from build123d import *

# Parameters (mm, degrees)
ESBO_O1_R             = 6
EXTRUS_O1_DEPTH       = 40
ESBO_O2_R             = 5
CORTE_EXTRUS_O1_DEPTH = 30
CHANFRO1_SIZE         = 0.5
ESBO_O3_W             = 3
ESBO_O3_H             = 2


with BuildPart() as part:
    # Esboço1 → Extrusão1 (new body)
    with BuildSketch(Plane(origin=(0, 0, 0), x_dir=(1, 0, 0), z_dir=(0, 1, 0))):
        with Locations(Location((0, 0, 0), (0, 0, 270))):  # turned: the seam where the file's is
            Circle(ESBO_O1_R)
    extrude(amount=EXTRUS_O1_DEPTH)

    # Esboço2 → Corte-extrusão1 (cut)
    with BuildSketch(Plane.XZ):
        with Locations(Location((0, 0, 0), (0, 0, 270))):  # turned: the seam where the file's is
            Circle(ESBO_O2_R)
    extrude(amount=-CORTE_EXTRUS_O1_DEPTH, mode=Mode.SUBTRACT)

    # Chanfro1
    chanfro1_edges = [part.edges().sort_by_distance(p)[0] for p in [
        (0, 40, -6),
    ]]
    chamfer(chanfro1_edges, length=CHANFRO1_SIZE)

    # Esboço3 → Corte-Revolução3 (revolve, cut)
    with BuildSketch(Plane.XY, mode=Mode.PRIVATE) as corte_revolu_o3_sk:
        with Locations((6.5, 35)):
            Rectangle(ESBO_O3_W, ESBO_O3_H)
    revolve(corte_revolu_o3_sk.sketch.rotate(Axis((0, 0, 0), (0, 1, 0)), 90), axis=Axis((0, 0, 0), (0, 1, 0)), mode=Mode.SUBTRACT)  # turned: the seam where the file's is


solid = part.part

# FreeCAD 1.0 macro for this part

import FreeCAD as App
import Part
import Sketcher


def edges_at(feature, points):
    """Names of the edges that pass closest to the given points."""
    edges = feature.Shape.Edges
    near = lambda p: min(range(len(edges)), key=lambda i: edges[i].distToShape(Part.Vertex(*p))[0])
    return sorted({f"Edge{near(p) + 1}" for p in points})

doc = App.newDocument("Part")
body = doc.addObject("PartDesign::Body", "Body")

# Sketch on XZ plane
sketch1 = body.newObject("Sketcher::SketchObject", "Sketch")
sketch1.AttachmentSupport = (doc.getObject("XZ_Plane"), [""])
sketch1.MapMode = "FlatFace"
sketch1.addGeometry(Part.Circle(App.Vector(0, 0, 0), App.Vector(0, 0, 1), 6), False)
sketch1.addConstraint([
    Sketcher.Constraint("Coincident", 0, 3, -1, 1),
    Sketcher.Constraint("Diameter", 0, 12.0),
])
pad1 = body.newObject("PartDesign::Pad", "Pad")
pad1.Profile = sketch1
pad1.Length = 40
pad1.Reversed = True

# Sketch on XZ plane
sketch2 = body.newObject("Sketcher::SketchObject", "Sketch001")
sketch2.AttachmentSupport = (doc.getObject("XZ_Plane"), [""])
sketch2.MapMode = "FlatFace"
sketch2.addGeometry(Part.Circle(App.Vector(0, 0, 0), App.Vector(0, 0, 1), 5), False)
sketch2.addConstraint([
    Sketcher.Constraint("Coincident", 0, 3, -1, 1),
    Sketcher.Constraint("Diameter", 0, 10.0),
])
pocket1 = body.newObject("PartDesign::Pocket", "Pocket")
pocket1.Profile = sketch2
pocket1.Length = 30
doc.recompute()

chamfer = body.newObject("PartDesign::Chamfer", "Chamfer")
chamfer.Base = (pocket1, edges_at(pocket1, [(0, 40, -6)]))
chamfer.Size = 0.5

# Sketch on XY plane
sketch3 = body.newObject("Sketcher::SketchObject", "Sketch002")
sketch3.AttachmentSupport = (doc.getObject("XY_Plane"), [""])
sketch3.MapMode = "FlatFace"
sketch3.addGeometry([
    Part.LineSegment(App.Vector(5, 36, 0), App.Vector(5, 34, 0)),
    Part.LineSegment(App.Vector(5, 34, 0), App.Vector(8, 34, 0)),
    Part.LineSegment(App.Vector(8, 34, 0), App.Vector(8, 36, 0)),
    Part.LineSegment(App.Vector(8, 36, 0), App.Vector(5, 36, 0)),
], False)
sketch3.addConstraint([
    Sketcher.Constraint("Coincident", 0, 2, 1, 1),
    Sketcher.Constraint("Coincident", 1, 2, 2, 1),
    Sketcher.Constraint("Coincident", 2, 2, 3, 1),
    Sketcher.Constraint("Coincident", 3, 2, 0, 1),
    Sketcher.Constraint("Vertical", 0),
    Sketcher.Constraint("Horizontal", 1),
    Sketcher.Constraint("Vertical", 2),
    Sketcher.Constraint("Horizontal", 3),
    Sketcher.Constraint("DistanceX", 1, 1, 1, 2, 3.0),
    Sketcher.Constraint("DistanceY", 0, 2, 0, 1, 2.0),
    Sketcher.Constraint("DistanceX", -1, 1, 0, 2, 5.0),
    Sketcher.Constraint("DistanceY", -1, 1, 0, 2, 34.0),
])
groove = body.newObject("PartDesign::Groove", "Groove")
groove.Profile = sketch3
groove.ReferenceAxis = (sketch3, ["V_Axis"])
groove.Angle = 360

doc.recompute()
